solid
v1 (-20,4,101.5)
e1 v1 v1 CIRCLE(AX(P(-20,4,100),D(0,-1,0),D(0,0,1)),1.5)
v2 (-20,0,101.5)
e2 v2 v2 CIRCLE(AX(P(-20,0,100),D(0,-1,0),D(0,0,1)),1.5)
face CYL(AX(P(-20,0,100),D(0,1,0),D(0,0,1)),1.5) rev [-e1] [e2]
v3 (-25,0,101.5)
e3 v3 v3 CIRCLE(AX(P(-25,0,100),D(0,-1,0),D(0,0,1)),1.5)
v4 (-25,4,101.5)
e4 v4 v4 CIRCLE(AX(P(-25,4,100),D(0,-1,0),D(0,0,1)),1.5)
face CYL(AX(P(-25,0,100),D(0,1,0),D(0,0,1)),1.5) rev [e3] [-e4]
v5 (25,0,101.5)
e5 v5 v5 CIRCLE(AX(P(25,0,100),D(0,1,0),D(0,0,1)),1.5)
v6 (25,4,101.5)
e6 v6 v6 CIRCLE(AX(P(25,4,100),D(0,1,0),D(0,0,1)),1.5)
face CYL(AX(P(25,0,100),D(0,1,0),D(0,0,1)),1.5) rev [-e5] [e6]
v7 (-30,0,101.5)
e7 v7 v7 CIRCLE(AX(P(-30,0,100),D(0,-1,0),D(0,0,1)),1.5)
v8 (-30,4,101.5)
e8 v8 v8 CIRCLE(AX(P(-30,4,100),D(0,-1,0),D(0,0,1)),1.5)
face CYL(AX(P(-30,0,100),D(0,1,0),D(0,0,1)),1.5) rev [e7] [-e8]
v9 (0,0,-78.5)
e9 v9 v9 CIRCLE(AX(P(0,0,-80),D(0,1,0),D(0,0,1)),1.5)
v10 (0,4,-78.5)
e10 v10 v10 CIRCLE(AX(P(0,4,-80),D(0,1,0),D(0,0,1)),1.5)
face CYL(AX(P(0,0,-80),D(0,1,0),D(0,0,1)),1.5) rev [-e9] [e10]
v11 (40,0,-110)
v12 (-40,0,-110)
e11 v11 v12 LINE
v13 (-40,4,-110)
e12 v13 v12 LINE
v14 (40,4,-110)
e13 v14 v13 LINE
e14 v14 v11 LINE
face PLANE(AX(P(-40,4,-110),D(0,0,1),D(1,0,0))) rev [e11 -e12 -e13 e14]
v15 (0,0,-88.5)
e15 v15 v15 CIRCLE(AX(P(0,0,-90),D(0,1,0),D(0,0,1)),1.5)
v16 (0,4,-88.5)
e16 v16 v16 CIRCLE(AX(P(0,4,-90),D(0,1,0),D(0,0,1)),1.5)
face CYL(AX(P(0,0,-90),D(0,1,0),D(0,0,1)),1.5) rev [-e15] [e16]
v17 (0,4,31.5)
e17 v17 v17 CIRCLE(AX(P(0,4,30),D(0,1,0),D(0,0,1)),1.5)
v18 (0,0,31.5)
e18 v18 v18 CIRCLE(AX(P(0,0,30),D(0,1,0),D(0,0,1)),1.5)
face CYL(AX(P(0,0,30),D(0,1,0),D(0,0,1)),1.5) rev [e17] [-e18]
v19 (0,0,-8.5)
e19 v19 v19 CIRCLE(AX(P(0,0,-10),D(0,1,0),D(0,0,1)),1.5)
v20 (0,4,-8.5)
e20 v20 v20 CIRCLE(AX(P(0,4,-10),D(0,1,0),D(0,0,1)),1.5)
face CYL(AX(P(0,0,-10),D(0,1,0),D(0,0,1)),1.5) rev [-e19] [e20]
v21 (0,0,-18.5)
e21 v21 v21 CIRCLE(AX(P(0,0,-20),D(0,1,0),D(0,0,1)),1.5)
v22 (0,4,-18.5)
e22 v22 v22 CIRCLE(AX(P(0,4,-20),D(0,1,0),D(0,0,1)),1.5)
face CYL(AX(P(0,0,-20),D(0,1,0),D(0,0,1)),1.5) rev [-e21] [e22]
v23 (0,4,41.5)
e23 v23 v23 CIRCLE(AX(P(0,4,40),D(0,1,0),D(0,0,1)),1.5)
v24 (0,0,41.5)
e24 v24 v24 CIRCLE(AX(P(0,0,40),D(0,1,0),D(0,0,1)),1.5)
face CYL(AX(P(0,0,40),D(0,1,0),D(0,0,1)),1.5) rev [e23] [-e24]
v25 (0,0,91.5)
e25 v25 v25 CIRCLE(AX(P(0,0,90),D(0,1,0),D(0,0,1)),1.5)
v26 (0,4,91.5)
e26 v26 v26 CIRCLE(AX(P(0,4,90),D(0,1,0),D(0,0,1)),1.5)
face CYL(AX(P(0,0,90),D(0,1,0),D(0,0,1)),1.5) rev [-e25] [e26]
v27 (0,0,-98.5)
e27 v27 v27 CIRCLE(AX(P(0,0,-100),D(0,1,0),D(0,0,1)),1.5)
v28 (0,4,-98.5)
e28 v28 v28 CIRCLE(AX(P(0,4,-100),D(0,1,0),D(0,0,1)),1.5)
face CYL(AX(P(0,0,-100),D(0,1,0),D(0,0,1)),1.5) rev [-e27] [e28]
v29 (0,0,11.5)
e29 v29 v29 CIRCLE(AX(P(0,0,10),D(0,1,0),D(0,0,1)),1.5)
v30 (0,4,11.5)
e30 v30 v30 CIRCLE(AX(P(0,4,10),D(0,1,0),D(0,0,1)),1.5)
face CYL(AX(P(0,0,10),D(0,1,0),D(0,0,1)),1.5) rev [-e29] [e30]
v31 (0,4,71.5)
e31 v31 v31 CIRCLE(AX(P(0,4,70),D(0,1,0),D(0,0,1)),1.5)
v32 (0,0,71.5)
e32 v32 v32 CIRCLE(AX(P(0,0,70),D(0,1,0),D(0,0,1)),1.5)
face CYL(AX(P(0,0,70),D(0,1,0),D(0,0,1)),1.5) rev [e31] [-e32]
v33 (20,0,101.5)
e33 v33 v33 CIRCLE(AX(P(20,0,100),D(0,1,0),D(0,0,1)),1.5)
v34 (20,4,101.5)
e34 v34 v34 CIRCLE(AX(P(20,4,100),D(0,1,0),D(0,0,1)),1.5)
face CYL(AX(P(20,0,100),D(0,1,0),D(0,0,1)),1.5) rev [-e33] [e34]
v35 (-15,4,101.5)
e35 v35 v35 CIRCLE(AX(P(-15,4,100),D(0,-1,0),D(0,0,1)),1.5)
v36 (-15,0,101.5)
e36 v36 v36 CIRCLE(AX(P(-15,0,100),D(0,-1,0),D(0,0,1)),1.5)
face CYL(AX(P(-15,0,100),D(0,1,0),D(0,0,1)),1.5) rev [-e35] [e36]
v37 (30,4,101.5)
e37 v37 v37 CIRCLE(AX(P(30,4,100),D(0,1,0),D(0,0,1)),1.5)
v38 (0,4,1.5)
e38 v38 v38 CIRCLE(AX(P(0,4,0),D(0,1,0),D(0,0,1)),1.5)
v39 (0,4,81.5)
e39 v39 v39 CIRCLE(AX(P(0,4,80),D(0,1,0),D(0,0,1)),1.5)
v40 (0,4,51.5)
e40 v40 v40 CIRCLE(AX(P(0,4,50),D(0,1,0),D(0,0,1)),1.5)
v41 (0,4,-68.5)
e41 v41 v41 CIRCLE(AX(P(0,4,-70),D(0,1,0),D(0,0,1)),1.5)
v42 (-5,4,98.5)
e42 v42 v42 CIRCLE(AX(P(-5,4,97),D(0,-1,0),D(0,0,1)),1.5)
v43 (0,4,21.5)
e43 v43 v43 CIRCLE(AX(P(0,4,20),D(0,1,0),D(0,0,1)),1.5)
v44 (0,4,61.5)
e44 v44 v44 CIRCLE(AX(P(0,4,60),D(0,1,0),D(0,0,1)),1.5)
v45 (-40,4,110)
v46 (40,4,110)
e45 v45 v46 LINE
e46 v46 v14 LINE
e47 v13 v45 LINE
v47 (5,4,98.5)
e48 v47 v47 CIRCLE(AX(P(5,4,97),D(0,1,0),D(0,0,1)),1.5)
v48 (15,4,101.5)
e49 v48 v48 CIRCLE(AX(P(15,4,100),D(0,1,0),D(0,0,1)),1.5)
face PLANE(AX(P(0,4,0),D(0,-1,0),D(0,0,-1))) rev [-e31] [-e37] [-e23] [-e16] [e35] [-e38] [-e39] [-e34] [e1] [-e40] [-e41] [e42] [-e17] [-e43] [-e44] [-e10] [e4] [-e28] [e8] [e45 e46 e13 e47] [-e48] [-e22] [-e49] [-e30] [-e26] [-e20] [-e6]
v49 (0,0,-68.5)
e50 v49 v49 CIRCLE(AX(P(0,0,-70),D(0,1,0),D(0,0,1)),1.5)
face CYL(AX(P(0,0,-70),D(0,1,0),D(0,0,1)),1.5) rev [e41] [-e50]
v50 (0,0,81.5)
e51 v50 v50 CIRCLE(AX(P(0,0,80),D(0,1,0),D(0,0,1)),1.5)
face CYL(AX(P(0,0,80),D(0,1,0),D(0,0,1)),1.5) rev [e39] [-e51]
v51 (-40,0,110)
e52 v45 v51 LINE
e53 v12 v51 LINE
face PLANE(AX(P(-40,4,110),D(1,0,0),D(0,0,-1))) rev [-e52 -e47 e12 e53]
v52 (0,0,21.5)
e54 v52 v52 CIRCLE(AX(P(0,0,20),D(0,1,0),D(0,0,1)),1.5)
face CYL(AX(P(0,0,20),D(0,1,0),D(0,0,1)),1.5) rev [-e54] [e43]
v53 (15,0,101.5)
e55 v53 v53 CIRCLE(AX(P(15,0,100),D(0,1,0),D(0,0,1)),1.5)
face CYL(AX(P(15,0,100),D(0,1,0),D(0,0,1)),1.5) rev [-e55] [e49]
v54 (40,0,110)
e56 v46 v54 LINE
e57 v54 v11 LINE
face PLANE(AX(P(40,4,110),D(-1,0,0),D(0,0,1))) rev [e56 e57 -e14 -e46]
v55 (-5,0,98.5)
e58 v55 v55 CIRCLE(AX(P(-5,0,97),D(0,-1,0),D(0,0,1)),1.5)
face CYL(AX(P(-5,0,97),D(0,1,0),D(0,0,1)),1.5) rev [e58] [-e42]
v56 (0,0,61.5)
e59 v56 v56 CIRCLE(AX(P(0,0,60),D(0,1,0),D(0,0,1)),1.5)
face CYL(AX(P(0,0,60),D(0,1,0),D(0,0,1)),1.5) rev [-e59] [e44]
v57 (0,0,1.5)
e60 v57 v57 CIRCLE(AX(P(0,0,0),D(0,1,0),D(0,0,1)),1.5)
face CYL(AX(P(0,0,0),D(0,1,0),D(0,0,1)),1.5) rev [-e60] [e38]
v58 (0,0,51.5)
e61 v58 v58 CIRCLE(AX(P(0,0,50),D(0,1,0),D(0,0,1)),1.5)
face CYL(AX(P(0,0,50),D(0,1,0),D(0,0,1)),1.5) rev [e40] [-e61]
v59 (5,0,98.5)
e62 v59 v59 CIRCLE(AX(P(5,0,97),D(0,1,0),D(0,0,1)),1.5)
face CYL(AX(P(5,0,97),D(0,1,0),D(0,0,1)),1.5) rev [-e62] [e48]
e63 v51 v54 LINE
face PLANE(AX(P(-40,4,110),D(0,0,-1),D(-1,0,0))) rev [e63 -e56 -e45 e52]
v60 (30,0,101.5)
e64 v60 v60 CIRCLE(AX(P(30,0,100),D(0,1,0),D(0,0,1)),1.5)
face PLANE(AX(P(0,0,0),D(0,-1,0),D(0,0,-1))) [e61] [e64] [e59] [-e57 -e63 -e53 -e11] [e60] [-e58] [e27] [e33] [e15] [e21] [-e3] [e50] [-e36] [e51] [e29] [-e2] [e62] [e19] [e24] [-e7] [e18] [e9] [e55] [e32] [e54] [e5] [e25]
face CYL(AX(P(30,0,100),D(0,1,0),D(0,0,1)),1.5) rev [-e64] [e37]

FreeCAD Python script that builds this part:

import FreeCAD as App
import Part
import Sketcher

V = App.Vector
Q = App.Units.Quantity

doc = App.newDocument("Part")
body = doc.addObject("PartDesign::Body", "Body")

# Sketch on XZ plane
sketch1 = doc.addObject("Sketcher::SketchObject", "Sketch")
body.addObject(sketch1)
sketch1.AttachmentSupport = (doc.XZ_Plane, [""])
sketch1.MapMode = "FlatFace"
sketch1.addGeometry([
    Part.LineSegment(V(-40, -110, 0), V(-40, 110, 0)),
    Part.LineSegment(V(-40, 110, 0), V(40, 110, 0)),
    Part.LineSegment(V(40, 110, 0), V(40, -110, 0)),
    Part.LineSegment(V(40, -110, 0), V(-40, -110, 0)),
], False)
sketch1.addConstraint([
    Sketcher.Constraint("Coincident", 0, 2, 1, 1),
    Sketcher.Constraint("Coincident", 1, 2, 2, 1),
    Sketcher.Constraint("Coincident", 2, 2, 3, 1),
    Sketcher.Constraint("Coincident", 3, 2, 0, 1),
    Sketcher.Constraint("Vertical", 0),
    Sketcher.Constraint("Horizontal", 1),
    Sketcher.Constraint("Vertical", 2),
    Sketcher.Constraint("Horizontal", 3),
    Sketcher.Constraint("Symmetric", 0, 2, 2, 2, -1, 1),
    Sketcher.Constraint("DistanceX", 1, 1, 1, 2, Q("80 mm")),
    Sketcher.Constraint("DistanceY", 0, 1, 0, 2, Q("220 mm")),
])
pad1 = doc.addObject("PartDesign::Pad", "Pad")
body.addObject(pad1)
pad1.Profile = sketch1
pad1.Length = 4
pad1.Reversed = True

# Sketch on XZ plane
sketch2 = doc.addObject("Sketcher::SketchObject", "Sketch001")
body.addObject(sketch2)
sketch2.AttachmentSupport = (doc.XZ_Plane, [""])
sketch2.MapMode = "FlatFace"
sketch2.AttachmentOffset = App.Placement(V(0, 0, -4), App.Rotation())
sketch2.addGeometry([
    Part.Circle(V(30, 100, 0), V(0, 0, 1), 1.5),
    Part.Circle(V(25, 100, 0), V(0, 0, 1), 1.5),
    Part.Circle(V(20, 100, 0), V(0, 0, 1), 1.5),
    Part.Circle(V(15, 100, 0), V(0, 0, 1), 1.5),
], False)
sketch2.addConstraint([
    Sketcher.Constraint("Equal", 0, 1),
    Sketcher.Constraint("Equal", 1, 2),
    Sketcher.Constraint("Equal", 2, 3),
    Sketcher.Constraint("Horizontal", 0, 3, 1, 3),
    Sketcher.Constraint("Horizontal", 1, 3, 2, 3),
    Sketcher.Constraint("Horizontal", 2, 3, 3, 3),
    Sketcher.Constraint("Diameter", 0, Q("3 mm")),
    Sketcher.Constraint("DistanceX", -1, 1, 0, 3, Q("30 mm")),
    Sketcher.Constraint("DistanceY", -1, 1, 0, 3, Q("100 mm")),
    Sketcher.Constraint("DistanceX", -1, 1, 1, 3, Q("25 mm")),
    Sketcher.Constraint("DistanceX", -1, 1, 2, 3, Q("20 mm")),
    Sketcher.Constraint("DistanceX", -1, 1, 3, 3, Q("15 mm")),
])
pocket1 = doc.addObject("PartDesign::Pocket", "Pocket")
body.addObject(pocket1)
pocket1.Profile = sketch2
pocket1.Type = "ThroughAll"
pocket1.Reversed = True
doc.recompute()

mirrored = doc.addObject("PartDesign::Mirrored", "Mirrored")
body.addObject(mirrored)
mirrored.Originals = [pocket1]
mirrored.MirrorPlane = (doc.YZ_Plane, [""])
body.Tip = mirrored

# Sketch on XZ plane
sketch3 = doc.addObject("Sketcher::SketchObject", "Sketch002")
body.addObject(sketch3)
sketch3.AttachmentSupport = (doc.XZ_Plane, [""])
sketch3.MapMode = "FlatFace"
sketch3.AttachmentOffset = App.Placement(V(0, 0, -4), App.Rotation())
sketch3.addGeometry([
    Part.Circle(V(0, 90, 0), V(0, 0, 1), 1.5),  # 0
    Part.Circle(V(0, 80, 0), V(0, 0, 1), 1.5),  # 1
    Part.Circle(V(0, 70, 0), V(0, 0, 1), 1.5),  # 2
    Part.Circle(V(0, 60, 0), V(0, 0, 1), 1.5),  # 3
    Part.Circle(V(0, 50, 0), V(0, 0, 1), 1.5),  # 4
    Part.Circle(V(0, 40, 0), V(0, 0, 1), 1.5),  # 5
    Part.Circle(V(0, 30, 0), V(0, 0, 1), 1.5),  # 6
    Part.Circle(V(0, 20, 0), V(0, 0, 1), 1.5),  # 7
    Part.Circle(V(0, 10, 0), V(0, 0, 1), 1.5),  # 8
    Part.Circle(V(0, 0, 0), V(0, 0, 1), 1.5),  # 9
    Part.Circle(V(0, -10, 0), V(0, 0, 1), 1.5),  # 10
    Part.Circle(V(0, -20, 0), V(0, 0, 1), 1.5),  # 11
], False)
sketch3.addConstraint([
    Sketcher.Constraint("Coincident", 9, 3, -1, 1),
    Sketcher.Constraint("Equal", 0, 1),
    Sketcher.Constraint("Equal", 1, 2),
    Sketcher.Constraint("Equal", 2, 3),
    Sketcher.Constraint("Equal", 3, 4),
    Sketcher.Constraint("Equal", 4, 5),
    Sketcher.Constraint("Equal", 5, 6),
    Sketcher.Constraint("Equal", 6, 7),
    Sketcher.Constraint("Equal", 7, 8),
    Sketcher.Constraint("Equal", 8, 9),
    Sketcher.Constraint("Equal", 9, 10),
    Sketcher.Constraint("Equal", 10, 11),
    Sketcher.Constraint("Symmetric", 8, 3, 10, 3, -1, 1),
    Sketcher.Constraint("Symmetric", 7, 3, 11, 3, -1, 1),
    Sketcher.Constraint("PointOnObject", 0, 3, -2),
    Sketcher.Constraint("PointOnObject", 1, 3, -2),
    Sketcher.Constraint("PointOnObject", 2, 3, -2),
    Sketcher.Constraint("PointOnObject", 3, 3, -2),
    Sketcher.Constraint("PointOnObject", 4, 3, -2),
    Sketcher.Constraint("PointOnObject", 5, 3, -2),
    Sketcher.Constraint("PointOnObject", 6, 3, -2),
    Sketcher.Constraint("PointOnObject", 7, 3, -2),
    Sketcher.Constraint("PointOnObject", 8, 3, -2),
    Sketcher.Constraint("Diameter", 0, Q("3 mm")),
    Sketcher.Constraint("DistanceY", -1, 1, 0, 3, Q("90 mm")),
    Sketcher.Constraint("DistanceY", -1, 1, 1, 3, Q("80 mm")),
    Sketcher.Constraint("DistanceY", -1, 1, 2, 3, Q("70 mm")),
    Sketcher.Constraint("DistanceY", -1, 1, 3, 3, Q("60 mm")),
    Sketcher.Constraint("DistanceY", -1, 1, 4, 3, Q("50 mm")),
    Sketcher.Constraint("DistanceY", -1, 1, 5, 3, Q("40 mm")),
    Sketcher.Constraint("DistanceY", -1, 1, 6, 3, Q("30 mm")),
    Sketcher.Constraint("DistanceY", -1, 1, 7, 3, Q("20 mm")),
    Sketcher.Constraint("DistanceY", -1, 1, 8, 3, Q("10 mm")),
])
pocket2 = doc.addObject("PartDesign::Pocket", "Pocket001")
body.addObject(pocket2)
pocket2.Profile = sketch3
pocket2.Type = "ThroughAll"
pocket2.Reversed = True

# Sketch on XZ plane
sketch4 = doc.addObject("Sketcher::SketchObject", "Sketch003")
body.addObject(sketch4)
sketch4.AttachmentSupport = (doc.XZ_Plane, [""])
sketch4.MapMode = "FlatFace"
sketch4.AttachmentOffset = App.Placement(V(0, 0, -4), App.Rotation())
sketch4.addGeometry(Part.Circle(V(5, 97, 0), V(0, 0, 1), 1.5), False)
sketch4.addConstraint([
    Sketcher.Constraint("Diameter", 0, Q("3 mm")),
    Sketcher.Constraint("DistanceX", -1, 1, 0, 3, Q("5 mm")),
    Sketcher.Constraint("DistanceY", -1, 1, 0, 3, Q("97 mm")),
])
pocket3 = doc.addObject("PartDesign::Pocket", "Pocket002")
body.addObject(pocket3)
pocket3.Profile = sketch4
pocket3.Type = "ThroughAll"
pocket3.Reversed = True
doc.recompute()

mirrored2 = doc.addObject("PartDesign::Mirrored", "Mirrored001")
body.addObject(mirrored2)
mirrored2.Originals = [pocket3]
mirrored2.MirrorPlane = (doc.YZ_Plane, [""])
body.Tip = mirrored2

# Sketch on XZ plane
sketch5 = doc.addObject("Sketcher::SketchObject", "Sketch004")
body.addObject(sketch5)
sketch5.AttachmentSupport = (doc.XZ_Plane, [""])
sketch5.MapMode = "FlatFace"
sketch5.AttachmentOffset = App.Placement(V(0, 0, -4), App.Rotation())
sketch5.addGeometry([
    Part.Circle(V(0, -70, 0), V(0, 0, 1), 1.5),
    Part.Circle(V(0, -80, 0), V(0, 0, 1), 1.5),
    Part.Circle(V(0, -90, 0), V(0, 0, 1), 1.5),
    Part.Circle(V(0, -100, 0), V(0, 0, 1), 1.5),
], False)
sketch5.addConstraint([
    Sketcher.Constraint("Equal", 0, 1),
    Sketcher.Constraint("Equal", 1, 2),
    Sketcher.Constraint("Equal", 2, 3),
    Sketcher.Constraint("PointOnObject", 0, 3, -2),
    Sketcher.Constraint("PointOnObject", 1, 3, -2),
    Sketcher.Constraint("PointOnObject", 2, 3, -2),
    Sketcher.Constraint("PointOnObject", 3, 3, -2),
    Sketcher.Constraint("Diameter", 0, Q("3 mm")),
    Sketcher.Constraint("DistanceY", 0, 3, -1, 1, Q("70 mm")),
    Sketcher.Constraint("DistanceY", 1, 3, -1, 1, Q("80 mm")),
    Sketcher.Constraint("DistanceY", 2, 3, -1, 1, Q("90 mm")),
    Sketcher.Constraint("DistanceY", 3, 3, -1, 1, Q("100 mm")),
])
pocket4 = doc.addObject("PartDesign::Pocket", "Pocket003")
body.addObject(pocket4)
pocket4.Profile = sketch5
pocket4.Type = "ThroughAll"
pocket4.Reversed = True

doc.recompute()
